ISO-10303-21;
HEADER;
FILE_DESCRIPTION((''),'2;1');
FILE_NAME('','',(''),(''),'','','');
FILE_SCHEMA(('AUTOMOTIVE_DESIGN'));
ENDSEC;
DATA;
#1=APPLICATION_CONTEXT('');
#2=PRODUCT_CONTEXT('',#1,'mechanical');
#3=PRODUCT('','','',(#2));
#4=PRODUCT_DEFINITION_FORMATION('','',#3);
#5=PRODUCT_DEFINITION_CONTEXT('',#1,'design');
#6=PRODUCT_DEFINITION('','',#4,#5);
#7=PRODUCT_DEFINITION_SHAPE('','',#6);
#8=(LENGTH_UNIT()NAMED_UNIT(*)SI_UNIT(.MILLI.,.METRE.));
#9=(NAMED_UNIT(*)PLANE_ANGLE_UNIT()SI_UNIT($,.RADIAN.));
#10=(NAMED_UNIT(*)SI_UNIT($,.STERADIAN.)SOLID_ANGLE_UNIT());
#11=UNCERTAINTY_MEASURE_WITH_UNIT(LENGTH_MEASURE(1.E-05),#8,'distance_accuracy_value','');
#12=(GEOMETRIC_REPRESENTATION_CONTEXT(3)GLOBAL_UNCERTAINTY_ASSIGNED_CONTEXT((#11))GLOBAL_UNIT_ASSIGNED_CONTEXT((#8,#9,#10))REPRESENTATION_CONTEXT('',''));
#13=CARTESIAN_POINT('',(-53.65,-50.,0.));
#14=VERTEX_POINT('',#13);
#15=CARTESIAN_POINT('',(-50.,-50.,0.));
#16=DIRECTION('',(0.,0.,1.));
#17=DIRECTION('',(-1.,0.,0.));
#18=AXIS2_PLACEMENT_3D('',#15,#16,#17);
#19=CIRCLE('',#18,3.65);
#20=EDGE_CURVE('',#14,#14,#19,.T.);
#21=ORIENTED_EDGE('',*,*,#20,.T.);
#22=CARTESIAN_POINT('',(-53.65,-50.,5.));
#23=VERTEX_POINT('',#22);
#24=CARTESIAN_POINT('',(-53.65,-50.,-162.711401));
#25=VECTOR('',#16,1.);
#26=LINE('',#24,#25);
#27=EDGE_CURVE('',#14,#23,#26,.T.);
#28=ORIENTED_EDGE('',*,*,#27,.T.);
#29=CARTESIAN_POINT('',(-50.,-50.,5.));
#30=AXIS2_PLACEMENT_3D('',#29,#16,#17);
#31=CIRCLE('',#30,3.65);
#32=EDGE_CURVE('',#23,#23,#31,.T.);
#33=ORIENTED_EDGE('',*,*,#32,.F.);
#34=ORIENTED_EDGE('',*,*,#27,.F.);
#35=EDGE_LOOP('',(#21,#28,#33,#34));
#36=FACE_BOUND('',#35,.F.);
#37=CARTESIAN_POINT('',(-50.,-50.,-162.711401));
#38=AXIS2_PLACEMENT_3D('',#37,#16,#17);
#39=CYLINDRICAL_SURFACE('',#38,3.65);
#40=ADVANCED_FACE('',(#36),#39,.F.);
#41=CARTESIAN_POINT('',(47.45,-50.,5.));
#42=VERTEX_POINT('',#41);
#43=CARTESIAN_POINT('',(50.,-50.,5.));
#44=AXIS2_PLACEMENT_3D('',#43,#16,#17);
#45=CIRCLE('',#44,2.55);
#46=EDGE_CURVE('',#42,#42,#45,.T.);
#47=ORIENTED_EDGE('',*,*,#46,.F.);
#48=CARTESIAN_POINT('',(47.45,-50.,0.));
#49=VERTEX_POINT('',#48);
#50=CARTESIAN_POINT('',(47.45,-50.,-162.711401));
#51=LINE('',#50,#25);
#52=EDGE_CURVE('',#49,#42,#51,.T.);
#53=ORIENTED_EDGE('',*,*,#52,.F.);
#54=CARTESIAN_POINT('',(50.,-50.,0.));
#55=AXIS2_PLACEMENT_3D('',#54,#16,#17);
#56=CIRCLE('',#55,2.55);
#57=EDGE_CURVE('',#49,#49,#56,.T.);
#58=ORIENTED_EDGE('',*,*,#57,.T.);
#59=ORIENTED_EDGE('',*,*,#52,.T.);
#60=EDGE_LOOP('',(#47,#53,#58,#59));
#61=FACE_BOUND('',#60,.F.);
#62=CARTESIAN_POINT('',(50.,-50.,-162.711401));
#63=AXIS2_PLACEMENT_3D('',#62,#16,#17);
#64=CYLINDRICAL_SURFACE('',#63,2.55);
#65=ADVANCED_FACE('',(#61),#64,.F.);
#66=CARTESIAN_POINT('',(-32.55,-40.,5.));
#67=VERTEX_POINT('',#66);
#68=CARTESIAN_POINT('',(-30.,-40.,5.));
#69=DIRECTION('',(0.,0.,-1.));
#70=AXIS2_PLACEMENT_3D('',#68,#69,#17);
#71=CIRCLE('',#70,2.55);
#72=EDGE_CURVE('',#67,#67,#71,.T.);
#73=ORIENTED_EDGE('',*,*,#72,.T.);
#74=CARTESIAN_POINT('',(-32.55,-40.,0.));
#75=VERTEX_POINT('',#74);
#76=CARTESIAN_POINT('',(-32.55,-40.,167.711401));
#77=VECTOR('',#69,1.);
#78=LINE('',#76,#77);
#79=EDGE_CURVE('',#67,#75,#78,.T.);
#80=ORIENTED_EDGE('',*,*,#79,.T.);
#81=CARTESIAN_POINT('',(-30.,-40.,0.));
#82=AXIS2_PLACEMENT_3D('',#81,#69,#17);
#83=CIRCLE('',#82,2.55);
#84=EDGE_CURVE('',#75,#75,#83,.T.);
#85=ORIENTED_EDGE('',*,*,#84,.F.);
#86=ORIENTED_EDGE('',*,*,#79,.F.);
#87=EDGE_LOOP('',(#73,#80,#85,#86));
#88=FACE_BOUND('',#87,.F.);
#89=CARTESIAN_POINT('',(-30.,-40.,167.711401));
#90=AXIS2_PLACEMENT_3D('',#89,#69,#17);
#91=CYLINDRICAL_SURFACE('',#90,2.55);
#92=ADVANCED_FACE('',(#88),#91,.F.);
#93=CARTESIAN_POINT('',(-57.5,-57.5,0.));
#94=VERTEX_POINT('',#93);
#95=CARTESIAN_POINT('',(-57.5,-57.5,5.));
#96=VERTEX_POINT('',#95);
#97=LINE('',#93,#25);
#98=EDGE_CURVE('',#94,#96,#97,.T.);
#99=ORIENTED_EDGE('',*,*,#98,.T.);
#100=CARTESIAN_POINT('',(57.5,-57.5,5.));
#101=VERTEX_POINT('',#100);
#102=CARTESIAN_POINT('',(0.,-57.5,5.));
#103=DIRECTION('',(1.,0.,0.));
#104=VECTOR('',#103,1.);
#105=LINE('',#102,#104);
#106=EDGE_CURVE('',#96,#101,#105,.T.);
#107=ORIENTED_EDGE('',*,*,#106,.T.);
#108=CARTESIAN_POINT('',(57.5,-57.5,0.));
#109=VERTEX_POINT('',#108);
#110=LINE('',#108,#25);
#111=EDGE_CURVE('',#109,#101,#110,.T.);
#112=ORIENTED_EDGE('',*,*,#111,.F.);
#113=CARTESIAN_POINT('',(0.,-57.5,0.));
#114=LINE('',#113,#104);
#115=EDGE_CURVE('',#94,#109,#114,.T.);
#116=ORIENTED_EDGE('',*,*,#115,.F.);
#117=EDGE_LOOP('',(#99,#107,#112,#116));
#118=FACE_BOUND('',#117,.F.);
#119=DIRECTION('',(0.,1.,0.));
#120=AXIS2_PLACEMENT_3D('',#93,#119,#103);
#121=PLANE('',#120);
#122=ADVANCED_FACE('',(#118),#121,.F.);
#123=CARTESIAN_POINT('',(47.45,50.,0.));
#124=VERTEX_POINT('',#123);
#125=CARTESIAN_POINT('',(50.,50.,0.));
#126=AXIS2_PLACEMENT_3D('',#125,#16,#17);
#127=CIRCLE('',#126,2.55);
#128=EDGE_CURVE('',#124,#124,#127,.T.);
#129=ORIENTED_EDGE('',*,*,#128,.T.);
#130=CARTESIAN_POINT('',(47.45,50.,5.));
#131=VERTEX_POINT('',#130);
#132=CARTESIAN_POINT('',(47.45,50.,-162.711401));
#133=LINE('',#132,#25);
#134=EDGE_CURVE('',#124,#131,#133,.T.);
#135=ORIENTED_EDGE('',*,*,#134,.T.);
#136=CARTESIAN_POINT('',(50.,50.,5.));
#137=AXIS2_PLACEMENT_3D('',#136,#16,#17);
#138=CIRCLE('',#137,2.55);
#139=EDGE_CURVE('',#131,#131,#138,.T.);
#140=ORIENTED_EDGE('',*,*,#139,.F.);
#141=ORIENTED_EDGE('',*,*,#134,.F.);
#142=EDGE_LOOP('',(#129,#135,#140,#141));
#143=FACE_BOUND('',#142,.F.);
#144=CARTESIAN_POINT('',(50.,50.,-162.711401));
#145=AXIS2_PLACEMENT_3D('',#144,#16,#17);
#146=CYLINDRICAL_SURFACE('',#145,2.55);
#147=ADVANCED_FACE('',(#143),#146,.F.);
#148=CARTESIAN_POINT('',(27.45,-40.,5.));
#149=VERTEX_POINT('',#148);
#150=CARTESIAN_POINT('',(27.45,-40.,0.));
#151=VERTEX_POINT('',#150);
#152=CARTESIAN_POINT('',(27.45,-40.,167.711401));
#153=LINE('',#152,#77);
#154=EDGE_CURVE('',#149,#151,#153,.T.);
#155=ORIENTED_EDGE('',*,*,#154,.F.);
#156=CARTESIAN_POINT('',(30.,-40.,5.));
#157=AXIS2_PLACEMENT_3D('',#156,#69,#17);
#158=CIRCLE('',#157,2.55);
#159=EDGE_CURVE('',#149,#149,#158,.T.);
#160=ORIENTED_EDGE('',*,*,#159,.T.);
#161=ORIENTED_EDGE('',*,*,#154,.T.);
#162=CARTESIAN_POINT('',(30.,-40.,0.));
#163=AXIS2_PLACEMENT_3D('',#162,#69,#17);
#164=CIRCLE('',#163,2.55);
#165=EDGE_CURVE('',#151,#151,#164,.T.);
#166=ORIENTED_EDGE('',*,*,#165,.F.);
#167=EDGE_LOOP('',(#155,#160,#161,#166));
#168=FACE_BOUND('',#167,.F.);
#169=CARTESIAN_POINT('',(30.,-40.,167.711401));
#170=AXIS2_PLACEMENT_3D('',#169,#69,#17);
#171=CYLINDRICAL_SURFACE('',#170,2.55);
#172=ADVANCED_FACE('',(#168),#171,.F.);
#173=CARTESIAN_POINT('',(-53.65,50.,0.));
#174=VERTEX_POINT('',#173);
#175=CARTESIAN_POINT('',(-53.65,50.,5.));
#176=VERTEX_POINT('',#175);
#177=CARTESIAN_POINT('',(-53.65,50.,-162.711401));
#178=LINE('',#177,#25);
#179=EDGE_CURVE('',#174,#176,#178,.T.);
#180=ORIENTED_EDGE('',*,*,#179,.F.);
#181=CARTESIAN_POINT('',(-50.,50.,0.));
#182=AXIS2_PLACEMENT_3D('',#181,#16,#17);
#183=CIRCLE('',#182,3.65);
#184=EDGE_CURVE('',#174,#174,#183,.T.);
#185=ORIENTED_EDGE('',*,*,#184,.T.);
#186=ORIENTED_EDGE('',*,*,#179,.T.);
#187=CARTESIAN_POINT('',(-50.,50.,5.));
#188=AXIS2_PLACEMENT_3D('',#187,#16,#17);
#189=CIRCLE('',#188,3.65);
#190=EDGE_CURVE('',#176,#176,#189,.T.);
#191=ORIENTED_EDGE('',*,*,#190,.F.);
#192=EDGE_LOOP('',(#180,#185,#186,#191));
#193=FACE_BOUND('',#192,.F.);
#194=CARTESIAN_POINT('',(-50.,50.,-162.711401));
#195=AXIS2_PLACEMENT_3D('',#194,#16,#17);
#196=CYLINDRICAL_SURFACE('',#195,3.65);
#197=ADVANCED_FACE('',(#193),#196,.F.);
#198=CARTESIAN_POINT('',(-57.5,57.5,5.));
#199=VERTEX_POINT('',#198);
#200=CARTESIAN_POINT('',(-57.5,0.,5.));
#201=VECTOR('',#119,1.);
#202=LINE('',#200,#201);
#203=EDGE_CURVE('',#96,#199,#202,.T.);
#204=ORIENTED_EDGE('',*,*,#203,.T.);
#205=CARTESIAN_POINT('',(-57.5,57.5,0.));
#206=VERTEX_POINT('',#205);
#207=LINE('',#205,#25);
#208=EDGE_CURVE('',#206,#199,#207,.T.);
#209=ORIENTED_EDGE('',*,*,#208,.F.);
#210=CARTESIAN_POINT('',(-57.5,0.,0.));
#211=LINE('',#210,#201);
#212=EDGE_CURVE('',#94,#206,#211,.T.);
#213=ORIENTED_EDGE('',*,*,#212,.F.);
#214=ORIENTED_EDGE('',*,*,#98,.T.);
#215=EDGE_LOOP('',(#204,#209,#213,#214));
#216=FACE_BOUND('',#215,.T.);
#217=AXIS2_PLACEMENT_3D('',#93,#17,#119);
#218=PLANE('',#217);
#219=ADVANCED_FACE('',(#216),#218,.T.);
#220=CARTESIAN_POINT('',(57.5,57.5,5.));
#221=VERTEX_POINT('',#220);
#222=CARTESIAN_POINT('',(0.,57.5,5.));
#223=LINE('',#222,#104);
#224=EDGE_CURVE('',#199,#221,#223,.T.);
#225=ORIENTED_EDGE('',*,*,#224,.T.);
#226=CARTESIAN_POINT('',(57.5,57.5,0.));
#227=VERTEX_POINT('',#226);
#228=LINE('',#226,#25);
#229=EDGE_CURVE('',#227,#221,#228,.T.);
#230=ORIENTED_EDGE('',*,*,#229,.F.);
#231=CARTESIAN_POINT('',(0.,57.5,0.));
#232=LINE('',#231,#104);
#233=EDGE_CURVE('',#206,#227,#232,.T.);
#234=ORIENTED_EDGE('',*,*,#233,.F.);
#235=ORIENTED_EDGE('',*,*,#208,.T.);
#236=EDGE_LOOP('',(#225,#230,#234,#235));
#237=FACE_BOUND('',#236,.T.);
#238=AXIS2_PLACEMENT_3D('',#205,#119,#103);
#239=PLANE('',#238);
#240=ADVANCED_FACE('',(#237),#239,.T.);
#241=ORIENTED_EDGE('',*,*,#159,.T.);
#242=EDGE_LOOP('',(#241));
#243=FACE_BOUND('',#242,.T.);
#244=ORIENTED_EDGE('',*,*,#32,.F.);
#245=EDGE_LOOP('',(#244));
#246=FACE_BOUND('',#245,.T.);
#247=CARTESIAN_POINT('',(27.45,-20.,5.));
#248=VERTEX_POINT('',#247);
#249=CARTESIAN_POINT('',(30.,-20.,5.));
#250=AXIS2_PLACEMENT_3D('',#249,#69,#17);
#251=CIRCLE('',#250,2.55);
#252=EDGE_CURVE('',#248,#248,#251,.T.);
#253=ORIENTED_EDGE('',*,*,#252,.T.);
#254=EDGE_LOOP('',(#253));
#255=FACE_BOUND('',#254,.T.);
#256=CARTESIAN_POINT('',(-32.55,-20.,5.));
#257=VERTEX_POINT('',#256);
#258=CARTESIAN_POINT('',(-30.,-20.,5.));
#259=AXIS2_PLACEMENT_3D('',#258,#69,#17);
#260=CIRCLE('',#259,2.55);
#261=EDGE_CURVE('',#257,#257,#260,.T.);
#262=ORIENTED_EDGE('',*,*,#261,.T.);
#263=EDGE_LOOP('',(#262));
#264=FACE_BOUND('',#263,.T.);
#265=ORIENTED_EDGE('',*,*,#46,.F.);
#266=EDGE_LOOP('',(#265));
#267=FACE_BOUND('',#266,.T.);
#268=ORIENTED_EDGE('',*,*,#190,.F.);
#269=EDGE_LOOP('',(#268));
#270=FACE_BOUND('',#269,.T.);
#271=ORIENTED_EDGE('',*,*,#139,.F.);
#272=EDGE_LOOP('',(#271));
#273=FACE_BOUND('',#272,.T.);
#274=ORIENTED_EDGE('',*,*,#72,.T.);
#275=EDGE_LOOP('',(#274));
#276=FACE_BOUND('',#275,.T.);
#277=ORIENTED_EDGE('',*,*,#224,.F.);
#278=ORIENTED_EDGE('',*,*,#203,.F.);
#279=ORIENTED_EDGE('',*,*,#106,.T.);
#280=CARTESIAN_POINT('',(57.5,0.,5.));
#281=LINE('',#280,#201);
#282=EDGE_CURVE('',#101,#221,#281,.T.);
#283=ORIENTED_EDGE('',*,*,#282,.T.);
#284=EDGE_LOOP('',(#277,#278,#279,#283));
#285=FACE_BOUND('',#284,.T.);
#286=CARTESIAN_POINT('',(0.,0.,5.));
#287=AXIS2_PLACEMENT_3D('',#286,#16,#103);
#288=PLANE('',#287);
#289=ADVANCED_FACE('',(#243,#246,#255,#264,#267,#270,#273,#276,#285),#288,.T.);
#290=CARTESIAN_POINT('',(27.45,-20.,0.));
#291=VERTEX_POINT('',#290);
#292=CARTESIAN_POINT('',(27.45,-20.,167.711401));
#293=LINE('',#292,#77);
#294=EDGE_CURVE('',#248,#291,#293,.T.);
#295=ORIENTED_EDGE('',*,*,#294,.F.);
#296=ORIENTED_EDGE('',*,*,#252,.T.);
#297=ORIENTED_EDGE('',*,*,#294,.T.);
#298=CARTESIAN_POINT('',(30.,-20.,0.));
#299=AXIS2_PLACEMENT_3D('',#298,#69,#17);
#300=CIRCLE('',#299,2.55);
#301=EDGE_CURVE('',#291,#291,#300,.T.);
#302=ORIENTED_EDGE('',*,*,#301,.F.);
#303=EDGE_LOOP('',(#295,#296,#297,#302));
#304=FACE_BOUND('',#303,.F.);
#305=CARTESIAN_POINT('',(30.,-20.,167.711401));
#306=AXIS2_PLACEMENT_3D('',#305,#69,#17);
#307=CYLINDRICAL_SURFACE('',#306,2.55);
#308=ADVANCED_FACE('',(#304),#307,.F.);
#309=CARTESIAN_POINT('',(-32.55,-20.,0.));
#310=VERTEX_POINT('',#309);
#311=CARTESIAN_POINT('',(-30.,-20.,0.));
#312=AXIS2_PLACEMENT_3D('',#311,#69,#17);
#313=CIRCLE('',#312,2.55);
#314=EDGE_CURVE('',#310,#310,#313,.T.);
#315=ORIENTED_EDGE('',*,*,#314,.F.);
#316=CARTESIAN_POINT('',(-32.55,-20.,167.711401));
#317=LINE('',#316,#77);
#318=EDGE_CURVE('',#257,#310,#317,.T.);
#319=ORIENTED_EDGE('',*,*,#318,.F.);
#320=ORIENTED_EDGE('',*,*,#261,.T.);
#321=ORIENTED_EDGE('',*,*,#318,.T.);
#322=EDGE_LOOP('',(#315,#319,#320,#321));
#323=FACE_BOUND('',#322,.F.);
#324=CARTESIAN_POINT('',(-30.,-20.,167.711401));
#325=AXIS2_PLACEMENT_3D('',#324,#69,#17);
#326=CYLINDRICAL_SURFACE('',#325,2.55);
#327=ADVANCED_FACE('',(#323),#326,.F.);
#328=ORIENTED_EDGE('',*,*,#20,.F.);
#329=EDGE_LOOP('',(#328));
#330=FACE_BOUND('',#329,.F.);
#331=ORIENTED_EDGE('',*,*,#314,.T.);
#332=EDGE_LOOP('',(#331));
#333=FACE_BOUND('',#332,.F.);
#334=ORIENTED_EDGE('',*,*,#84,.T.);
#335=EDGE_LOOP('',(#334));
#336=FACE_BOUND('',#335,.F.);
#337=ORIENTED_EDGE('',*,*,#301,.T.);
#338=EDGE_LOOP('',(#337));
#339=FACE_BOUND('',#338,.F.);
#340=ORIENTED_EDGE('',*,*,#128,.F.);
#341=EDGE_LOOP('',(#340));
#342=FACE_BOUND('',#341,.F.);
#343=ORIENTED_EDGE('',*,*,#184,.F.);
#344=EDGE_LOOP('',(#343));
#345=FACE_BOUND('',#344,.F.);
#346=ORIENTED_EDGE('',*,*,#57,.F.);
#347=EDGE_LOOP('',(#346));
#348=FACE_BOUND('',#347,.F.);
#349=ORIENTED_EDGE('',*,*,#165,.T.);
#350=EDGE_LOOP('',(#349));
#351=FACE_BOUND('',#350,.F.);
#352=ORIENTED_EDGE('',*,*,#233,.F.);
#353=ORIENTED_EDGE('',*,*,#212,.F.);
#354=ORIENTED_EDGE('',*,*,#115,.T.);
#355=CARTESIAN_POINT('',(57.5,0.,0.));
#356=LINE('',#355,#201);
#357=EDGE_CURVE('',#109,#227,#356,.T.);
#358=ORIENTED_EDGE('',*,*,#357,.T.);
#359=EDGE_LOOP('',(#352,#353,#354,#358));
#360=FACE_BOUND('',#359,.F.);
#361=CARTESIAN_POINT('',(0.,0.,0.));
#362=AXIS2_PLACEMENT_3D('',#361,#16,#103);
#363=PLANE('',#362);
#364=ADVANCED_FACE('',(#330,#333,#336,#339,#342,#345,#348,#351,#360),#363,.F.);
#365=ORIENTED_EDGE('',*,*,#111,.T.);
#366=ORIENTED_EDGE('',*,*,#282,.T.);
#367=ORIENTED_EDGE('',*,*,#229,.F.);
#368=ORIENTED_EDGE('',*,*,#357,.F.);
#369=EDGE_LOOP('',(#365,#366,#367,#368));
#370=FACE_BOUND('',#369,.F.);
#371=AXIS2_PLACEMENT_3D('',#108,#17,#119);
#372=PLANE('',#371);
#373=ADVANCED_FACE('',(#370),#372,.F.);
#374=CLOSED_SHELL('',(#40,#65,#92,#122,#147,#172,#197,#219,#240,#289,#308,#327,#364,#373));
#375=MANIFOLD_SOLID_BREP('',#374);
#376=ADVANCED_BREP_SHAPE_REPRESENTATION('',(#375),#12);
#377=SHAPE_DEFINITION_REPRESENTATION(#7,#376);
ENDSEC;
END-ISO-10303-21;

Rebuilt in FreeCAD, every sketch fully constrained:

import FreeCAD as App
import Part
import Sketcher

V = App.Vector

doc = App.newDocument("Part")
body = doc.addObject("PartDesign::Body", "Body")

# Sketch on XY plane
sketch1 = doc.addObject("Sketcher::SketchObject", "Sketch")
body.addObject(sketch1)
sketch1.AttachmentSupport = (doc.XY_Plane, [""])
sketch1.MapMode = "FlatFace"
sketch1.addGeometry(Part.LineSegment(V(-58, 58, 0), V(-58, -58, 0)), False)
sketch1.addGeometry(Part.LineSegment(V(-58, -58, 0), V(58, -58, 0)), False)
sketch1.addGeometry(Part.LineSegment(V(58, -58, 0), V(58, 58, 0)), False)
sketch1.addGeometry(Part.LineSegment(V(58, 58, 0), V(-58, 58, 0)), False)
sketch1.addConstraint(Sketcher.Constraint("Coincident", 0, 2, 1, 1))
sketch1.addConstraint(Sketcher.Constraint("Coincident", 1, 2, 2, 1))
sketch1.addConstraint(Sketcher.Constraint("Coincident", 2, 2, 3, 1))
sketch1.addConstraint(Sketcher.Constraint("Coincident", 3, 2, 0, 1))
sketch1.addConstraint(Sketcher.Constraint("Vertical", 0))
sketch1.addConstraint(Sketcher.Constraint("Horizontal", 1))
sketch1.addConstraint(Sketcher.Constraint("Vertical", 2))
sketch1.addConstraint(Sketcher.Constraint("Horizontal", 3))
sketch1.addConstraint(Sketcher.Constraint("Symmetric", 0, 2, 2, 2, -1, 1))
sketch1.addConstraint(Sketcher.Constraint("Equal", 3, 0))
sketch1.addConstraint(Sketcher.Constraint("DistanceX", 1, 1, 1, 2, 115.0))
pad1 = doc.addObject("PartDesign::Pad", "Pad")
body.addObject(pad1)
pad1.Profile = sketch1
pad1.Length = 5

# Sketch on XY plane
sketch2 = doc.addObject("Sketcher::SketchObject", "Sketch001")
body.addObject(sketch2)
sketch2.AttachmentSupport = (doc.XY_Plane, [""])
sketch2.MapMode = "FlatFace"
sketch2.addGeometry(Part.Circle(V(50, -50, 0), V(0, 0, 1), 2.5), False)
sketch2.addGeometry(Part.Circle(V(50, 50, 0), V(0, 0, 1), 2.5), False)
sketch2.addConstraint(Sketcher.Constraint("Equal", 0, 1))
sketch2.addConstraint(Sketcher.Constraint("Symmetric", 0, 3, 1, 3, -1))
sketch2.addConstraint(Sketcher.Constraint("Diameter", 0, 5.1))
sketch2.addConstraint(Sketcher.Constraint("DistanceX", -1, 1, 0, 3, 50.0))
sketch2.addConstraint(Sketcher.Constraint("DistanceY", 0, 3, -1, 1, 50.0))
doc.recompute()
hole = doc.addObject("PartDesign::Hole", "Hole")
body.addObject(hole)
hole.Profile = sketch2
hole.ThreadType = "None"
hole.Diameter = 5.1
hole.DepthType = "ThroughAll"
hole.Reversed = True

# Sketch on XY plane
sketch3 = doc.addObject("Sketcher::SketchObject", "Sketch002")
body.addObject(sketch3)
sketch3.AttachmentSupport = (doc.XY_Plane, [""])
sketch3.MapMode = "FlatFace"
sketch3.addGeometry(Part.Circle(V(-50, 50, 0), V(0, 0, 1), 3.6), False)
sketch3.addGeometry(Part.Circle(V(-50, -50, 0), V(0, 0, 1), 3.6), False)
sketch3.addConstraint(Sketcher.Constraint("Equal", 0, 1))
sketch3.addConstraint(Sketcher.Constraint("Symmetric", 0, 3, 1, 3, -1))
sketch3.addConstraint(Sketcher.Constraint("Diameter", 0, 7.3))
sketch3.addConstraint(Sketcher.Constraint("DistanceX", 0, 3, -1, 1, 50.0))
sketch3.addConstraint(Sketcher.Constraint("DistanceY", -1, 1, 0, 3, 50.0))
doc.recompute()
hole2 = doc.addObject("PartDesign::Hole", "Hole001")
body.addObject(hole2)
hole2.Profile = sketch3
hole2.ThreadType = "None"
hole2.Diameter = 7.3
hole2.DepthType = "ThroughAll"
hole2.Reversed = True

# Sketch on XY plane
sketch4 = doc.addObject("Sketcher::SketchObject", "Sketch003")
body.addObject(sketch4)
sketch4.AttachmentSupport = (doc.XY_Plane, [""])
sketch4.MapMode = "FlatFace"
sketch4.AttachmentOffset = App.Placement(V(0, 0, 5), App.Rotation())
sketch4.addGeometry(Part.Circle(V(30, -20, 0), V(0, 0, 1), 2.5), False)
sketch4.addGeometry(Part.Circle(V(30, -40, 0), V(0, 0, 1), 2.5), False)
sketch4.addGeometry(Part.Circle(V(-30, -20, 0), V(0, 0, 1), 2.5), False)
sketch4.addGeometry(Part.Circle(V(-30, -40, 0), V(0, 0, 1), 2.5), False)
sketch4.addConstraint(Sketcher.Constraint("Equal", 0, 1))
sketch4.addConstraint(Sketcher.Constraint("Equal", 1, 2))
sketch4.addConstraint(Sketcher.Constraint("Equal", 2, 3))
sketch4.addConstraint(Sketcher.Constraint("Symmetric", 0, 3, 2, 3, -2))
sketch4.addConstraint(Sketcher.Constraint("Symmetric", 1, 3, 3, 3, -2))
sketch4.addConstraint(Sketcher.Constraint("Vertical", 0, 3, 1, 3))
sketch4.addConstraint(Sketcher.Constraint("Diameter", 0, 5.1))
sketch4.addConstraint(Sketcher.Constraint("DistanceX", -1, 1, 0, 3, 30.0))
sketch4.addConstraint(Sketcher.Constraint("DistanceY", 0, 3, -1, 1, 20.0))
sketch4.addConstraint(Sketcher.Constraint("DistanceY", 1, 3, -1, 1, 40.0))
doc.recompute()
hole3 = doc.addObject("PartDesign::Hole", "Hole002")
body.addObject(hole3)
hole3.Profile = sketch4
hole3.ThreadType = "None"
hole3.Diameter = 5.1
hole3.DepthType = "ThroughAll"

doc.recompute()
